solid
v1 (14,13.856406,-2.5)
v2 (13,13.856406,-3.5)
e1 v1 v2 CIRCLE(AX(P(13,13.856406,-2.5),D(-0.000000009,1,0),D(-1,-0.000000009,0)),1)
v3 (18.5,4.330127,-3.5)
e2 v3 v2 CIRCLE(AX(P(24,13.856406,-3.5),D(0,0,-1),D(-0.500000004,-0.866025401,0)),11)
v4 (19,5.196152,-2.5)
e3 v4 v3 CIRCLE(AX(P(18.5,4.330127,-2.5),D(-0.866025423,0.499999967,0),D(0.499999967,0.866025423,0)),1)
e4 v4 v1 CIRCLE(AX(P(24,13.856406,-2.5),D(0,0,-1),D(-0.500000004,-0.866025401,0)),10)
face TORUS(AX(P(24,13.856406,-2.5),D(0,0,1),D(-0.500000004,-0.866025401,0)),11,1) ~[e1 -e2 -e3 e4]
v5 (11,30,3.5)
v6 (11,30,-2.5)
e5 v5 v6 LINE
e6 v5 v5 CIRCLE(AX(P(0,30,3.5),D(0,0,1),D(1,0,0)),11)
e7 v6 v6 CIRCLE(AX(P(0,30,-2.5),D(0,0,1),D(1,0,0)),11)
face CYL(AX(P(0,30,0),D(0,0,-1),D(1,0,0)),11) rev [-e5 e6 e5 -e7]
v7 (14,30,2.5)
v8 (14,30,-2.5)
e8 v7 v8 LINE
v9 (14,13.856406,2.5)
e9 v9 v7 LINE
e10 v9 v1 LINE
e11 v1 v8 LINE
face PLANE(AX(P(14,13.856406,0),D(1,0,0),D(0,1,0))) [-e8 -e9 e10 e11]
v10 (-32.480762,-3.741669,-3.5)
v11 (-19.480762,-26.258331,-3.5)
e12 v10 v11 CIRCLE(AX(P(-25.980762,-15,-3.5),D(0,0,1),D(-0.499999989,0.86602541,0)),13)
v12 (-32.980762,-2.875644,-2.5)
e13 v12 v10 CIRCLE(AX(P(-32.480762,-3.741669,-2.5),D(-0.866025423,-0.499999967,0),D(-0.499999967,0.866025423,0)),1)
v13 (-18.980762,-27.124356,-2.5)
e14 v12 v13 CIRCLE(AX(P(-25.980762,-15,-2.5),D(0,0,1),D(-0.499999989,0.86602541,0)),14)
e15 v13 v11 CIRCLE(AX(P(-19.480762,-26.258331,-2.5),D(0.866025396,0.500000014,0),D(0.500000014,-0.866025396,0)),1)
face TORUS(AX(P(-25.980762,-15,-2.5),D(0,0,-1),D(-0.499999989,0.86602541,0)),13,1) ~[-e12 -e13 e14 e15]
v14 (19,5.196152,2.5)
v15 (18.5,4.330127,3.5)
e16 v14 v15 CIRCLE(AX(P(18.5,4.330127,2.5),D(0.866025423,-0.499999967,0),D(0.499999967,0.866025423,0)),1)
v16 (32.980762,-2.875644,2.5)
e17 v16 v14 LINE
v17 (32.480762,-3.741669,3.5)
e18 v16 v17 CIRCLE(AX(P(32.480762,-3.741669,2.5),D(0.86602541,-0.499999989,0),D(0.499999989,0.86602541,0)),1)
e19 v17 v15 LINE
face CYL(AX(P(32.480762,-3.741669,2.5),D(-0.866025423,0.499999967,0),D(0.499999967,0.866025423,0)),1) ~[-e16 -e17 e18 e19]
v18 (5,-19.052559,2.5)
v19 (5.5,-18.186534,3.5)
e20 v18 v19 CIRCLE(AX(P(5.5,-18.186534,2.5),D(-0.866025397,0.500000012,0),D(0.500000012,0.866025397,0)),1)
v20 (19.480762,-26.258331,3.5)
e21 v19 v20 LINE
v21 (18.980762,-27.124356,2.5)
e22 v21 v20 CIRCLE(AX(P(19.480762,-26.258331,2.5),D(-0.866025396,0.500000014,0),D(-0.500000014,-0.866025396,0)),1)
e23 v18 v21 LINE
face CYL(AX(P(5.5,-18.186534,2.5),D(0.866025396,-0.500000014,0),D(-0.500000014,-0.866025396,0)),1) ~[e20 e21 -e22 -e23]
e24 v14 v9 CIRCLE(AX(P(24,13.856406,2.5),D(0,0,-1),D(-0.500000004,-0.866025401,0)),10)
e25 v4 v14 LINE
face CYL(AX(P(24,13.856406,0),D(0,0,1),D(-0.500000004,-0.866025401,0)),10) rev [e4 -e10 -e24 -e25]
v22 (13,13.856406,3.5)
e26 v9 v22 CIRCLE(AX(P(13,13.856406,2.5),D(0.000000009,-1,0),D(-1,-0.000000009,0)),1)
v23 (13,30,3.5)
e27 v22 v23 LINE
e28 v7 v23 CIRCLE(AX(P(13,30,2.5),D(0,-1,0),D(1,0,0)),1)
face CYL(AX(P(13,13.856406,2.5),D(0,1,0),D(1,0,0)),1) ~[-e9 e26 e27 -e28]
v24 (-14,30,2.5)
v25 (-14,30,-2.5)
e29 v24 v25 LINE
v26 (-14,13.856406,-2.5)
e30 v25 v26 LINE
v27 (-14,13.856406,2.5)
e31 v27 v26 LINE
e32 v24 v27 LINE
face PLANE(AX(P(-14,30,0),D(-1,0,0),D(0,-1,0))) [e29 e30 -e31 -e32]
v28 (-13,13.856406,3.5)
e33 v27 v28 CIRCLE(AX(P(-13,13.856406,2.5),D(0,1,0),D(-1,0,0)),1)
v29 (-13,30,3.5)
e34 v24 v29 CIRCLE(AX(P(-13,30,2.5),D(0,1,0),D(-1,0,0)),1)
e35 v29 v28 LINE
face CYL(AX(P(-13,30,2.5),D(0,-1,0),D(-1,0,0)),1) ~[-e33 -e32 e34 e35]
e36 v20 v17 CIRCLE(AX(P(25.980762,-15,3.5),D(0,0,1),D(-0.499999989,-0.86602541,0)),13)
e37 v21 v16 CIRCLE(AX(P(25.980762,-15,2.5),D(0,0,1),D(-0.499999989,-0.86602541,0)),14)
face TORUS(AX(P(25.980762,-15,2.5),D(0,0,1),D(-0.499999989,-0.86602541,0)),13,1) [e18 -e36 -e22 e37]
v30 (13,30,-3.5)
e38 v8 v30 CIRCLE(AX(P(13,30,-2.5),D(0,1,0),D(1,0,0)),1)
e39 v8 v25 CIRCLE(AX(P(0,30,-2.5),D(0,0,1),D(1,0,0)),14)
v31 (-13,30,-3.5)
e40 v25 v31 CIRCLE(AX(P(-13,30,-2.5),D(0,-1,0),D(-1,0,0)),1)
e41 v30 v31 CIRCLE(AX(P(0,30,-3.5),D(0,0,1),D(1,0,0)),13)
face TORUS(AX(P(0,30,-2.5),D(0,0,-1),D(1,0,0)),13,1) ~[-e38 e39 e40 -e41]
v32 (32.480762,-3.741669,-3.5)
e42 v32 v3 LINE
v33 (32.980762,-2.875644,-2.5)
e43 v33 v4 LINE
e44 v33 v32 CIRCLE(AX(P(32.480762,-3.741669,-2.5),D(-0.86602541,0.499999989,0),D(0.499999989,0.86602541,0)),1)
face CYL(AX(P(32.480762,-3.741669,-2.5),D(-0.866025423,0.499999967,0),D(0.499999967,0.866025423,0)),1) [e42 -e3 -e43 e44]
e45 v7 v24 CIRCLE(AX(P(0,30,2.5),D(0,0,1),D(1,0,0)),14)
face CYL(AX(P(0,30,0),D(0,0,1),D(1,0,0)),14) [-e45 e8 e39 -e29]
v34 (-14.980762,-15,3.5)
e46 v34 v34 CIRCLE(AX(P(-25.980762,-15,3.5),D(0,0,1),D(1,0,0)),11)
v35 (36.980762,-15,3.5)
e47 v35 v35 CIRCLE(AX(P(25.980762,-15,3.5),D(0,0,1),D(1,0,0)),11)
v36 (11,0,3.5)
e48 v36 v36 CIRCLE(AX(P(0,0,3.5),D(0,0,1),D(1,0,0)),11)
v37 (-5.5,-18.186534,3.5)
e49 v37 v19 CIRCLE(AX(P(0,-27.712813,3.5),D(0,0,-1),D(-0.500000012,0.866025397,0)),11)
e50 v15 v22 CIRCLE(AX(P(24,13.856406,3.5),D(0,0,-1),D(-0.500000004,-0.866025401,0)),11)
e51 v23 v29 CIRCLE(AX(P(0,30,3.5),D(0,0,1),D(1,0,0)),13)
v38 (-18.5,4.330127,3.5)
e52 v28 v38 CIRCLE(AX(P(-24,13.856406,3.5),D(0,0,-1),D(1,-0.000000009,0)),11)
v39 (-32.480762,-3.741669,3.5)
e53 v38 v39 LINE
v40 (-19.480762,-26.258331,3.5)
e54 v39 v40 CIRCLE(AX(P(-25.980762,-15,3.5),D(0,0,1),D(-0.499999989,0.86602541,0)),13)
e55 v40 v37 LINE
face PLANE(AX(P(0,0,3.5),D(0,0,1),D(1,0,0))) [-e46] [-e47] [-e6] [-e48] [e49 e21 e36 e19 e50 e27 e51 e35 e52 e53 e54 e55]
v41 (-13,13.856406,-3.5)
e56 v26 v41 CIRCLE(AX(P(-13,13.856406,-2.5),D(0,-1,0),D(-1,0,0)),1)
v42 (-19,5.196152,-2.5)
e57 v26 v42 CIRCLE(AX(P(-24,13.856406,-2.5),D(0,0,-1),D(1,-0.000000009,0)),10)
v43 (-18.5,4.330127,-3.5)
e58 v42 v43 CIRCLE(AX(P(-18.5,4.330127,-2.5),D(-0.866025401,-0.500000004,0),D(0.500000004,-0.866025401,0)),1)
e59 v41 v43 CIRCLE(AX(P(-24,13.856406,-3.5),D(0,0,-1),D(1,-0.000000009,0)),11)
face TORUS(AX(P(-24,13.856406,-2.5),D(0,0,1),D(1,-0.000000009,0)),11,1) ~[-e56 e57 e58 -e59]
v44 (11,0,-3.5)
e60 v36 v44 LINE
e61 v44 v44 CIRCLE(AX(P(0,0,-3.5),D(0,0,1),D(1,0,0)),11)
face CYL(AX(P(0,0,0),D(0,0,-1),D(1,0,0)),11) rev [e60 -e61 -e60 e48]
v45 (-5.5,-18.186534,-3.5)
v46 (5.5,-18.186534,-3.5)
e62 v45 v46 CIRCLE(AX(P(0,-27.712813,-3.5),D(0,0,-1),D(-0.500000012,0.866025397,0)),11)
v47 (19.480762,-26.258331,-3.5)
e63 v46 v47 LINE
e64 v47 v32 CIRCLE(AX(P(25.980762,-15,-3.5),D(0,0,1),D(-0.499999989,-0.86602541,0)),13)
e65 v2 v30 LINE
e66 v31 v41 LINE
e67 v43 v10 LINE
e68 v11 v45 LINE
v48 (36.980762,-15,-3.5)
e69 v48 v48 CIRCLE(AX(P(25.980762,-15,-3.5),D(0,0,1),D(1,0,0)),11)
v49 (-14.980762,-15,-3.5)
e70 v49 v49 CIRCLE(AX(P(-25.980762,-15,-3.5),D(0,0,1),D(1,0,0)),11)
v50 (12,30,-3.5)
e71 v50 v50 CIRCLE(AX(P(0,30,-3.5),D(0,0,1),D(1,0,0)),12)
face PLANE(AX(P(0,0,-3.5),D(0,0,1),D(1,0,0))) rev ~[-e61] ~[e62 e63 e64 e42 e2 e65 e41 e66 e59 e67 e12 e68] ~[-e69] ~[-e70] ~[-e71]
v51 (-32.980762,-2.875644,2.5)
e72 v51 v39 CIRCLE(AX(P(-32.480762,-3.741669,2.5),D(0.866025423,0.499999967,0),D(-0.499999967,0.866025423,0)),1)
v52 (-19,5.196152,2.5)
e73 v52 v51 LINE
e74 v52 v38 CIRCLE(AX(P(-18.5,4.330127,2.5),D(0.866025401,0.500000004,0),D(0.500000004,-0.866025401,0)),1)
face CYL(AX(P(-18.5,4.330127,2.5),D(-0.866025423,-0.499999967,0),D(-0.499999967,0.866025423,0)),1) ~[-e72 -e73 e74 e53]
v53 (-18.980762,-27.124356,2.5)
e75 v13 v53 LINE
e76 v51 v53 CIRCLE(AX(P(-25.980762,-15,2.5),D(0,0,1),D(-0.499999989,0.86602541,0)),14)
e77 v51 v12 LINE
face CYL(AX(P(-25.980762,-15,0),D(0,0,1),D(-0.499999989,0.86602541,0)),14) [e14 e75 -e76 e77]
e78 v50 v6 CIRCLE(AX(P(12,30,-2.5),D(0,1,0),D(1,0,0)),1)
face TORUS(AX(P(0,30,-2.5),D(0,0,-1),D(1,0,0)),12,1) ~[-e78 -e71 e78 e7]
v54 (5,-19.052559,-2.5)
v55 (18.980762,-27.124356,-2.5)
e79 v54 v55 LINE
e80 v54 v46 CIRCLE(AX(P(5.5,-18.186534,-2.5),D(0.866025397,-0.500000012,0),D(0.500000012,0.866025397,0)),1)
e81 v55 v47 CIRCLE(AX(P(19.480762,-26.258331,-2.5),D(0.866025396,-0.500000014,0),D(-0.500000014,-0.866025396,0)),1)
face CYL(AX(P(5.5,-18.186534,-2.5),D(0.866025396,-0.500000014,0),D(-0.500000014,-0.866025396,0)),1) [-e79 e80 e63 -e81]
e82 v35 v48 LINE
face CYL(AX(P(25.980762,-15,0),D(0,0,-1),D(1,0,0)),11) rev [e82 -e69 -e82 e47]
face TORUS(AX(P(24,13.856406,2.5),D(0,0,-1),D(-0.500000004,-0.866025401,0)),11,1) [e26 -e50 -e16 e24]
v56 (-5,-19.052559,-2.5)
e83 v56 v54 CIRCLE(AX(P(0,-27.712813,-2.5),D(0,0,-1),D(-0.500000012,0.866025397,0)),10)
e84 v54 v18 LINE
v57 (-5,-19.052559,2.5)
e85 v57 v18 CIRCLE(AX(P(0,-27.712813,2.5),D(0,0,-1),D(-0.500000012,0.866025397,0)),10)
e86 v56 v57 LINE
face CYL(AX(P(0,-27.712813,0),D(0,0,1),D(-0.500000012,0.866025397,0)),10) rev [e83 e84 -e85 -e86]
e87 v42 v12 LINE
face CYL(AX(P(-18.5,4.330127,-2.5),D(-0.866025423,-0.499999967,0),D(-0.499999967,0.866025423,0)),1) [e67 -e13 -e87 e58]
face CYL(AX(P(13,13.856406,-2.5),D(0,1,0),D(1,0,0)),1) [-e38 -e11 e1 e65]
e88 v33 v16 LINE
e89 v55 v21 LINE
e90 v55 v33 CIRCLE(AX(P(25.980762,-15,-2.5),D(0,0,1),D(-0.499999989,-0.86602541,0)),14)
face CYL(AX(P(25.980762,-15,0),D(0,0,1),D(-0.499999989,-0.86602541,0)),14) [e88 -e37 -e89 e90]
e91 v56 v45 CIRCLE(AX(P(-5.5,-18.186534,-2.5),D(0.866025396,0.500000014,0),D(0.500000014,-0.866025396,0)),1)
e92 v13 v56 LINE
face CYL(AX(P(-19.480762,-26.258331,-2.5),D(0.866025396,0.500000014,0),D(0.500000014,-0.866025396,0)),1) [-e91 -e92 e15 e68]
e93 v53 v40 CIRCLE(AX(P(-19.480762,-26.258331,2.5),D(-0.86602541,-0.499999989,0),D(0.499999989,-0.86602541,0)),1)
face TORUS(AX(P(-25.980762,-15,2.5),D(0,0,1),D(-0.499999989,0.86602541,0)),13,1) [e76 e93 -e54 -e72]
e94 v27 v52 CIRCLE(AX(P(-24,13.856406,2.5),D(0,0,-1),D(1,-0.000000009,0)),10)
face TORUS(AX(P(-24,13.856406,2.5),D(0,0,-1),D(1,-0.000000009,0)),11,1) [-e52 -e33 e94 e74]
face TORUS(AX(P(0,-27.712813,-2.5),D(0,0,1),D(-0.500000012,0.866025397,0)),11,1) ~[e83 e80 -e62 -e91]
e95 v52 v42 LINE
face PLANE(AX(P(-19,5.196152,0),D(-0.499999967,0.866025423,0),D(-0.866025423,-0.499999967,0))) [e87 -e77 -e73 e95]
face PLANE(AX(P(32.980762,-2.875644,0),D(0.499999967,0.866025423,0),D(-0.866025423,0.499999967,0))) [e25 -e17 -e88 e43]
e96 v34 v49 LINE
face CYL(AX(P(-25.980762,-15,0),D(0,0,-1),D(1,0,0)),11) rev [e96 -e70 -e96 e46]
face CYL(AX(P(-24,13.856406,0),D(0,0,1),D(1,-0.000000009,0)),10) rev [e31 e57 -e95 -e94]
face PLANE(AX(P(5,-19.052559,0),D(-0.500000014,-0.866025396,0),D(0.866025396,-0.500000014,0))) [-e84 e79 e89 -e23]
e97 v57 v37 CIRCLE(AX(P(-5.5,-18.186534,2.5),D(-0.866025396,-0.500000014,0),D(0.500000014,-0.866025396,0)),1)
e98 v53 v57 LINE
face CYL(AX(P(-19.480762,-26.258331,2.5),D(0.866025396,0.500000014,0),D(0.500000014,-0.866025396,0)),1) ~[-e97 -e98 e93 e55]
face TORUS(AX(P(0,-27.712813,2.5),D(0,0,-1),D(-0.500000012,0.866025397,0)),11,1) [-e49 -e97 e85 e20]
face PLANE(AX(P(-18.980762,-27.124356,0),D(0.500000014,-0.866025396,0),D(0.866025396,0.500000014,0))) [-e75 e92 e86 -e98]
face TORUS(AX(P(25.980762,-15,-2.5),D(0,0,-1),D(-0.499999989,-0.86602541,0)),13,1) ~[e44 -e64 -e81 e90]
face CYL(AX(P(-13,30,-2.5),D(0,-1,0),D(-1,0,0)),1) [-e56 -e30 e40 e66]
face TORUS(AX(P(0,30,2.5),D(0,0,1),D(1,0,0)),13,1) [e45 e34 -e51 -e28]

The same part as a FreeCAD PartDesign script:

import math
import FreeCAD as App
import Part
import Sketcher
Q = App.Units.Quantity


def edges_at(feature, points):
    """Names of the edges that pass closest to the given points."""
    edges = feature.Shape.Edges
    near = lambda p: min(range(len(edges)), key=lambda i: edges[i].distToShape(Part.Vertex(*p))[0])
    return sorted({f"Edge{near(p) + 1}" for p in points})

doc = App.newDocument("Part")
params = doc.addObject("Spreadsheet::Sheet", "Params")
for row, (alias, value) in enumerate([
    ("sketch1_diameter", "22 mm"),
    ("sketch1_radius", "14 mm"),
    ("sketch1_radius2", "10 mm"),
    ("pad1_length", "7 mm"),
    ("fillet_radius", "1 mm"),
    ("fillet2_radius", "1 mm"),
], start=1):
    params.set(f"A{row}", alias)
    params.set(f"B{row}", "=" + value)
    params.setAlias(f"B{row}", alias)

body = doc.addObject("PartDesign::Body", "Body")

# Sketch on XY plane
sketch1 = doc.addObject("Sketcher::SketchObject", "Sketch")
body.addObject(sketch1)
sketch1.AttachmentSupport = (doc.XY_Plane, [""])
sketch1.MapMode = "FlatFace"
sketch1.addGeometry([
    Part.ArcOfCircle(Part.Circle(App.Vector(-25.980762, -15, 0), App.Vector(0, 0, 1), 14), math.radians(119.999999), math.radians(299.999999)),  # 0
    Part.LineSegment(App.Vector(-18.980762, -27.124356, 0), App.Vector(-5, -19.052559, 0)),  # 1
    Part.ArcOfCircle(Part.Circle(App.Vector(0, -27.712813, 0), App.Vector(0, 0, 1), 10), math.radians(59.999999), math.radians(120.000001)),  # 2
    Part.LineSegment(App.Vector(5, -19.052559, 0), App.Vector(18.980762, -27.124356, 0)),  # 3
    Part.ArcOfCircle(Part.Circle(App.Vector(25.980762, -15, 0), App.Vector(0, 0, 1), 14), math.radians(-119.999999), math.radians(60.000001)),  # 4
    Part.LineSegment(App.Vector(32.980762, -2.875644, 0), App.Vector(19, 5.196152, 0)),  # 5
    Part.ArcOfCircle(Part.Circle(App.Vector(24, 13.856406, 0), App.Vector(0, 0, 1), 10), math.radians(-179.999999), math.radians(-120)),  # 6
    Part.LineSegment(App.Vector(14, 13.856406, 0), App.Vector(14, 30, 0)),  # 7
    Part.ArcOfCircle(Part.Circle(App.Vector(0, 30, 0), App.Vector(0, 0, 1), 14), math.radians(0), math.radians(180)),  # 8
    Part.LineSegment(App.Vector(-14, 30, 0), App.Vector(-14, 13.856406, 0)),  # 9
    Part.ArcOfCircle(Part.Circle(App.Vector(-24, 13.856406, 0), App.Vector(0, 0, 1), 10), math.radians(-60), math.radians(-0.000001)),  # 10
    Part.LineSegment(App.Vector(-19, 5.196152, 0), App.Vector(-32.980762, -2.875644, 0)),  # 11
    Part.Circle(App.Vector(-25.980762, -15, 0), App.Vector(0, 0, 1), 11),  # 12
    Part.Circle(App.Vector(25.980762, -15, 0), App.Vector(0, 0, 1), 11),  # 13
    Part.Circle(App.Vector(0, 0, 0), App.Vector(0, 0, 1), 11),  # 14
    Part.Circle(App.Vector(0, 30, 0), App.Vector(0, 0, 1), 11),  # 15
], False)
sketch1.addConstraint([
    Sketcher.Constraint("Tangent", 0, 2, 1, 1),
    Sketcher.Constraint("Tangent", 1, 2, 2, 2),
    Sketcher.Constraint("Tangent", 2, 1, 3, 1),
    Sketcher.Constraint("Tangent", 3, 2, 4, 1),
    Sketcher.Constraint("Tangent", 4, 2, 5, 1),
    Sketcher.Constraint("Tangent", 5, 2, 6, 2),
    Sketcher.Constraint("Tangent", 6, 1, 7, 1),
    Sketcher.Constraint("Tangent", 7, 2, 8, 1),
    Sketcher.Constraint("Tangent", 8, 2, 9, 1),
    Sketcher.Constraint("Tangent", 9, 2, 10, 2),
    Sketcher.Constraint("Tangent", 10, 1, 11, 1),
    Sketcher.Constraint("Tangent", 11, 2, 0, 1),
    Sketcher.Constraint("Vertical", 7),
    Sketcher.Constraint("Vertical", 9),
    Sketcher.Constraint("Coincident", 14, 3, -1, 1),
    Sketcher.Constraint("Coincident", 12, 3, 0, 3),
    Sketcher.Constraint("Coincident", 13, 3, 4, 3),
    Sketcher.Constraint("Coincident", 15, 3, 8, 3),
    Sketcher.Constraint("Equal", 0, 4),
    Sketcher.Constraint("Equal", 2, 6),
    Sketcher.Constraint("Equal", 4, 8),
    Sketcher.Constraint("Equal", 6, 10),
    Sketcher.Constraint("Equal", 12, 13),
    Sketcher.Constraint("Equal", 13, 14),
    Sketcher.Constraint("Equal", 14, 15),
    Sketcher.Constraint("Symmetric", 0, 3, 4, 3, -2),
    Sketcher.Constraint("Symmetric", 6, 3, 10, 3, -2),
    Sketcher.Constraint("PointOnObject", 2, 3, -2),
    Sketcher.Constraint("Parallel", 3, 5),
    Sketcher.Constraint("Equal", 3, 5),
    Sketcher.Constraint("Diameter", 12, Q("22 mm")),
    Sketcher.Constraint("Radius", 0, Q("14 mm")),
    Sketcher.Constraint("Radius", 2, Q("10 mm")),
    Sketcher.Constraint("DistanceY", 0, 3, -1, 1, Q("15 mm")),
    Sketcher.Constraint("DistanceY", -1, 1, 8, 3, Q("30 mm")),
    Sketcher.Constraint("DistanceY", 7, 1, 7, 2, Q("16.143594 mm")),
])
sketch1.setExpression("Constraints[30]", "Params.sketch1_diameter")
sketch1.setExpression("Constraints[31]", "Params.sketch1_radius")
sketch1.setExpression("Constraints[32]", "Params.sketch1_radius2")
pad1 = doc.addObject("PartDesign::Pad", "Pad")
body.addObject(pad1)
pad1.Profile = sketch1
pad1.setExpression("Length", "Params.pad1_length")
pad1.Midplane = True
doc.recompute()

fillet = doc.addObject("PartDesign::Fillet", "Fillet")
body.addObject(fillet)
fillet.Base = (pad1, edges_at(pad1, [
    (0, 44, 3.5),
    (14, 21.928, 3.5),
    (15.34, 8.856, 3.5),
    (25.99, 1.16, 3.5),
    (38.105, -22, 3.5),
    (11.99, -23.088, 3.5),
    (0, -17.713, 3.5),
    (-11.99, -23.088, 3.5),
    (-38.105, -22, 3.5),
    (-25.99, 1.16, 3.5),
    (-15.34, 8.856, 3.5),
    (-14, 21.928, 3.5),
]))
fillet.setExpression("Radius", "Params.fillet_radius")
doc.recompute()

fillet2 = doc.addObject("PartDesign::Fillet", "Fillet001")
body.addObject(fillet2)
fillet2.Base = (fillet, edges_at(fillet, [
    (-11.99, -23.088, -3.5),
    (-38.105, -22, -3.5),
    (-25.99, 1.16, -3.5),
    (-15.34, 8.856, -3.5),
    (-14, 21.928, -3.5),
    (-11, 30, -3.5),
    (14, 21.928, -3.5),
    (15.34, 8.856, -3.5),
    (25.99, 1.16, -3.5),
    (38.105, -22, -3.5),
    (11.99, -23.088, -3.5),
    (0, -17.713, -3.5),
]))
fillet2.setExpression("Radius", "Params.fillet2_radius")

doc.recompute()
